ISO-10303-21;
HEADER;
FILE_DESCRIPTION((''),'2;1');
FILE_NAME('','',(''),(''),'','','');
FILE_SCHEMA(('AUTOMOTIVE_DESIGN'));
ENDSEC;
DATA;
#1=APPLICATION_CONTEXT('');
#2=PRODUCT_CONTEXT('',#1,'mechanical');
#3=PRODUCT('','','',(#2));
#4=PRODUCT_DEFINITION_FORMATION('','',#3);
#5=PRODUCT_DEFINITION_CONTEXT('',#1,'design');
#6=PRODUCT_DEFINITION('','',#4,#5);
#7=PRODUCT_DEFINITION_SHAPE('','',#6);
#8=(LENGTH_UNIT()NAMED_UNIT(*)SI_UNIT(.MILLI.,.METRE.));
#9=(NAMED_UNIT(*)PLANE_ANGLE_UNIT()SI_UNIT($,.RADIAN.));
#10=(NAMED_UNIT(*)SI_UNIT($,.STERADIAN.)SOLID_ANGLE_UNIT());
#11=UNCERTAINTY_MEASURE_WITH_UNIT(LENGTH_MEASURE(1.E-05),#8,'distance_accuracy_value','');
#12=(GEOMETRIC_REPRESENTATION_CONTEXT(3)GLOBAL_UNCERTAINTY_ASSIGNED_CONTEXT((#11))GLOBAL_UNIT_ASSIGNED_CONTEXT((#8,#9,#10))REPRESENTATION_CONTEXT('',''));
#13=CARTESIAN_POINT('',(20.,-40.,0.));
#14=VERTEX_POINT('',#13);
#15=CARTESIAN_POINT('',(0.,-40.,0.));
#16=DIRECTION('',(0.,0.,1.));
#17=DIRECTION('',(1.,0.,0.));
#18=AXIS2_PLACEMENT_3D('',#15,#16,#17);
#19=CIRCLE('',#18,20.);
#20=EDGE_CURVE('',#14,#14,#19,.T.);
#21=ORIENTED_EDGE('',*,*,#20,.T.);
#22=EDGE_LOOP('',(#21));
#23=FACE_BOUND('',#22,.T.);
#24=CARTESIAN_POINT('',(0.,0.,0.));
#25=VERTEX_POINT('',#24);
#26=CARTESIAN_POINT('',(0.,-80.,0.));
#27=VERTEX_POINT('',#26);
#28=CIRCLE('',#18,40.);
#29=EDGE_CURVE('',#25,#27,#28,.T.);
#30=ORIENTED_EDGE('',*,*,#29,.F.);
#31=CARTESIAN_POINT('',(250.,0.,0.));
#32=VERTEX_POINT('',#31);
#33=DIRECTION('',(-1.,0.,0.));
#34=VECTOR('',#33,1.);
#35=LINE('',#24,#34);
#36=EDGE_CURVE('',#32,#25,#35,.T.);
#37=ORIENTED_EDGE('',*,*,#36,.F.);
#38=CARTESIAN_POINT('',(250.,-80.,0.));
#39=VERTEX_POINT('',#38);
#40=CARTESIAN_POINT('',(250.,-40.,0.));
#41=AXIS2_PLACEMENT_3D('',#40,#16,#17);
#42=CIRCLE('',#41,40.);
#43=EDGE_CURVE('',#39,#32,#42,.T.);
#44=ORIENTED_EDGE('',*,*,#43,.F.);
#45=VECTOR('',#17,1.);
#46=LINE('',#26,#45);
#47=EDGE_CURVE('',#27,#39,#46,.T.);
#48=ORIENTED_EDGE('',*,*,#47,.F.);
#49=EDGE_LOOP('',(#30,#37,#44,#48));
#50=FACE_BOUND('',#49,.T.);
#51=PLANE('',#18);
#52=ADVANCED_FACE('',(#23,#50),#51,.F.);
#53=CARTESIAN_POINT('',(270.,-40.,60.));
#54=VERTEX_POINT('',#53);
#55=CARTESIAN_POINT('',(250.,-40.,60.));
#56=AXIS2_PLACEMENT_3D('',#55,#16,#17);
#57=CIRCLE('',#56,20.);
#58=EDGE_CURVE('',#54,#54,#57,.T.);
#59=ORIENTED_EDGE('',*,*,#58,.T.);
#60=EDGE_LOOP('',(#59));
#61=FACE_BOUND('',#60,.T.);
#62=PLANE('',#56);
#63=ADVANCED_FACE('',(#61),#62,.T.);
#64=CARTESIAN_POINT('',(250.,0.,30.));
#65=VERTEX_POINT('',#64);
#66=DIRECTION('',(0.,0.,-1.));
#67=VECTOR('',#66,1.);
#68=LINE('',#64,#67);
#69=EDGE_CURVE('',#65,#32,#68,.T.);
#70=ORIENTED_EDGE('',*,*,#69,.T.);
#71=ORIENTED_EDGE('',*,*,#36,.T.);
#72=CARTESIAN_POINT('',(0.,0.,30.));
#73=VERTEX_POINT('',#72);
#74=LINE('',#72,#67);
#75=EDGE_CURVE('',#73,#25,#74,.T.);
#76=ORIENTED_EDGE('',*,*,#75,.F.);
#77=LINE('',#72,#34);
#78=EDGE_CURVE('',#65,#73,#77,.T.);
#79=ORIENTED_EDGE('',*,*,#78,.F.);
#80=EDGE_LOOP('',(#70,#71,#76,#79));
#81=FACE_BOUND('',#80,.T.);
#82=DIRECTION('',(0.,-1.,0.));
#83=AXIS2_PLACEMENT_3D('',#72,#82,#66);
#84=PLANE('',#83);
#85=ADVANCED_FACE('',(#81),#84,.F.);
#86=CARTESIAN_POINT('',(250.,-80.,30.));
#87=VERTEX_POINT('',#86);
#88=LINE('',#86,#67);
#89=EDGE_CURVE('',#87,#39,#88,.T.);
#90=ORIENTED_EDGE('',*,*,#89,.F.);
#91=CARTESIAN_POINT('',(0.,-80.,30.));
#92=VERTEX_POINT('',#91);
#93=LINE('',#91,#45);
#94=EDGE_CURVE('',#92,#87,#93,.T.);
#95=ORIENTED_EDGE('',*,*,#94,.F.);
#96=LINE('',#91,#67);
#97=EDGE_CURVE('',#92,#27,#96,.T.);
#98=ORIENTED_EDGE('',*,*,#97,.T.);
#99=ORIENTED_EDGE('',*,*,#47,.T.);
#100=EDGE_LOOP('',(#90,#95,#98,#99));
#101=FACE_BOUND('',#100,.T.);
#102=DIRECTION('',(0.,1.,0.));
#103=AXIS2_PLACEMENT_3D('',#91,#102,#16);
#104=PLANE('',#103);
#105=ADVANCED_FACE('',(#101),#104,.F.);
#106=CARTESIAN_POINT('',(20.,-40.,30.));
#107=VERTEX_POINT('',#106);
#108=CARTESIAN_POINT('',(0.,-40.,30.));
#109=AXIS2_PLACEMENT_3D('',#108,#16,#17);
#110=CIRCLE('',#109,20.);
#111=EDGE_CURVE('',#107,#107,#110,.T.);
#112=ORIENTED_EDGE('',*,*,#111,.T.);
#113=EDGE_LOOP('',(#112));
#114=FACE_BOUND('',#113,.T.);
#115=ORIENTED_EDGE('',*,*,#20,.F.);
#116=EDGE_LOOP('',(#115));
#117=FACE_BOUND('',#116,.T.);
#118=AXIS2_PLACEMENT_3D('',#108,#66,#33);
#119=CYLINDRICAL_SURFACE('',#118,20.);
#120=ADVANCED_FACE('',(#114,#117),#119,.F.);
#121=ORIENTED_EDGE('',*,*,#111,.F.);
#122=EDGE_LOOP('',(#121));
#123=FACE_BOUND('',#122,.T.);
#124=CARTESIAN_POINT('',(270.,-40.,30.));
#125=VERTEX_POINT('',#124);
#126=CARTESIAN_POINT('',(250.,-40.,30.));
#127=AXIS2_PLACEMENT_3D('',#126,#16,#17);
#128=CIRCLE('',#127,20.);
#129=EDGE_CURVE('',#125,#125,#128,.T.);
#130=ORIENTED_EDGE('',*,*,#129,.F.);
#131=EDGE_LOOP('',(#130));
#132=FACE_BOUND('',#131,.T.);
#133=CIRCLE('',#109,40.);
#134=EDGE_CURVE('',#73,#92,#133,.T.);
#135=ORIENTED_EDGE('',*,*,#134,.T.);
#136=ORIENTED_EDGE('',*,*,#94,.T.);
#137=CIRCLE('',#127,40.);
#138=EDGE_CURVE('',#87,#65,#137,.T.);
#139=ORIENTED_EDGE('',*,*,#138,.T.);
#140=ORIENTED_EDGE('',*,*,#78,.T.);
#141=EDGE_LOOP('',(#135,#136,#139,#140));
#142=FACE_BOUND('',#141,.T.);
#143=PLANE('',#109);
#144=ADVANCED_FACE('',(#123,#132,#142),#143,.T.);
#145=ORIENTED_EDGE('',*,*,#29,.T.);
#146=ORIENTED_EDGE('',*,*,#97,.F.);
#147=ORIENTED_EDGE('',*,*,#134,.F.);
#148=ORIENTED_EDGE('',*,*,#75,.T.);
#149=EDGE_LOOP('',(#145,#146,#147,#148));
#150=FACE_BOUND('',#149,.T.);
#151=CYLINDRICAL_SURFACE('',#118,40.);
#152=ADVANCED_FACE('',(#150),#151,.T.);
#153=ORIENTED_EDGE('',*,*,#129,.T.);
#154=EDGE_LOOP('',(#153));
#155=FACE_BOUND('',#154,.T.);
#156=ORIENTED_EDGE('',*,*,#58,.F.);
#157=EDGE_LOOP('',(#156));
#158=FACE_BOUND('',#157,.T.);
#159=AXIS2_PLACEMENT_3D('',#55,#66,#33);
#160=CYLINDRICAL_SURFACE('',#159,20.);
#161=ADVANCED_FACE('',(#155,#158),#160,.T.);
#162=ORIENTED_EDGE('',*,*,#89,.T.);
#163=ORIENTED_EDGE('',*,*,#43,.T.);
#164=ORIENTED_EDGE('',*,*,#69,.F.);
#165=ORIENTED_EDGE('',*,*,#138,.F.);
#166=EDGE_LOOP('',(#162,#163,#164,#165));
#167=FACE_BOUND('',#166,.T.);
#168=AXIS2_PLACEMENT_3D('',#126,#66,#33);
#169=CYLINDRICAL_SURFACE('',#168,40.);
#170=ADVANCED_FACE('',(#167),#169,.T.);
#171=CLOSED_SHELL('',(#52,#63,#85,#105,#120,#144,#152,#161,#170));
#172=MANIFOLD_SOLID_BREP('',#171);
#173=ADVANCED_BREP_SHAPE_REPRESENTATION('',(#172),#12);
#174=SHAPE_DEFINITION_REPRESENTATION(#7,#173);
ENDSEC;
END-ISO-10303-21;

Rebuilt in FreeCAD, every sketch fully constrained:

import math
import FreeCAD as App
import Part
import Sketcher
Q = App.Units.Quantity

doc = App.newDocument("Part")
body = doc.addObject("PartDesign::Body", "Body")

sketch1 = body.newObject("Sketcher::SketchObject", "Sketch")
sketch1.AttachmentSupport = (doc.getObject("XY_Plane"), [""])
sketch1.MapMode = "FlatFace"
sketch1.addGeometry(Part.LineSegment(App.Vector(250, 0, 0), App.Vector(0, 0, 0)), False)
sketch1.addGeometry(Part.ArcOfCircle(Part.Circle(App.Vector(0, -40, 0), App.Vector(0, 0, 1), 40), math.radians(90), math.radians(270)), False)
sketch1.addGeometry(Part.LineSegment(App.Vector(0, -80, 0), App.Vector(250, -80, 0)), False)
sketch1.addGeometry(Part.ArcOfCircle(Part.Circle(App.Vector(250, -40, 0), App.Vector(0, 0, 1), 40), math.radians(-90), math.radians(90)), False)
sketch1.addGeometry(Part.Circle(App.Vector(0, -40, 0), App.Vector(0, 0, 1), 20), False)
sketch1.addConstraint(Sketcher.Constraint("Tangent", 0, 2, 1, 1))
sketch1.addConstraint(Sketcher.Constraint("Tangent", 1, 2, 2, 1))
sketch1.addConstraint(Sketcher.Constraint("Tangent", 2, 2, 3, 1))
sketch1.addConstraint(Sketcher.Constraint("Tangent", 3, 2, 0, 1))
sketch1.addConstraint(Sketcher.Constraint("Horizontal", 0))
sketch1.addConstraint(Sketcher.Constraint("Horizontal", 2))
sketch1.addConstraint(Sketcher.Constraint("Coincident", 0, 2, -1, 1))
sketch1.addConstraint(Sketcher.Constraint("Coincident", 4, 3, 1, 3))
sketch1.addConstraint(Sketcher.Constraint("Diameter", 4, Q("40 mm")))
sketch1.addConstraint(Sketcher.Constraint("Radius", 1, Q("40 mm")))
sketch1.addConstraint(Sketcher.Constraint("DistanceX", 0, 2, 0, 1, Q("250 mm")))
pad1 = body.newObject("PartDesign::Pad", "Pad")
pad1.Profile = sketch1
pad1.Length = 30

sketch2 = body.newObject("Sketcher::SketchObject", "Sketch001")
sketch2.AttachmentSupport = (doc.getObject("XY_Plane"), [""])
sketch2.MapMode = "FlatFace"
sketch2.AttachmentOffset = App.Placement(App.Vector(0, 0, 30), App.Rotation())
sketch2.addGeometry(Part.Circle(App.Vector(250, -40, 0), App.Vector(0, 0, 1), 20), False)
sketch2.addConstraint(Sketcher.Constraint("Diameter", 0, Q("40 mm")))
sketch2.addConstraint(Sketcher.Constraint("DistanceX", -1, 1, 0, 3, Q("250 mm")))
sketch2.addConstraint(Sketcher.Constraint("DistanceY", 0, 3, -1, 1, Q("40 mm")))
pad2 = body.newObject("PartDesign::Pad", "Pad001")
pad2.Profile = sketch2
pad2.Length = 30

doc.recompute()
